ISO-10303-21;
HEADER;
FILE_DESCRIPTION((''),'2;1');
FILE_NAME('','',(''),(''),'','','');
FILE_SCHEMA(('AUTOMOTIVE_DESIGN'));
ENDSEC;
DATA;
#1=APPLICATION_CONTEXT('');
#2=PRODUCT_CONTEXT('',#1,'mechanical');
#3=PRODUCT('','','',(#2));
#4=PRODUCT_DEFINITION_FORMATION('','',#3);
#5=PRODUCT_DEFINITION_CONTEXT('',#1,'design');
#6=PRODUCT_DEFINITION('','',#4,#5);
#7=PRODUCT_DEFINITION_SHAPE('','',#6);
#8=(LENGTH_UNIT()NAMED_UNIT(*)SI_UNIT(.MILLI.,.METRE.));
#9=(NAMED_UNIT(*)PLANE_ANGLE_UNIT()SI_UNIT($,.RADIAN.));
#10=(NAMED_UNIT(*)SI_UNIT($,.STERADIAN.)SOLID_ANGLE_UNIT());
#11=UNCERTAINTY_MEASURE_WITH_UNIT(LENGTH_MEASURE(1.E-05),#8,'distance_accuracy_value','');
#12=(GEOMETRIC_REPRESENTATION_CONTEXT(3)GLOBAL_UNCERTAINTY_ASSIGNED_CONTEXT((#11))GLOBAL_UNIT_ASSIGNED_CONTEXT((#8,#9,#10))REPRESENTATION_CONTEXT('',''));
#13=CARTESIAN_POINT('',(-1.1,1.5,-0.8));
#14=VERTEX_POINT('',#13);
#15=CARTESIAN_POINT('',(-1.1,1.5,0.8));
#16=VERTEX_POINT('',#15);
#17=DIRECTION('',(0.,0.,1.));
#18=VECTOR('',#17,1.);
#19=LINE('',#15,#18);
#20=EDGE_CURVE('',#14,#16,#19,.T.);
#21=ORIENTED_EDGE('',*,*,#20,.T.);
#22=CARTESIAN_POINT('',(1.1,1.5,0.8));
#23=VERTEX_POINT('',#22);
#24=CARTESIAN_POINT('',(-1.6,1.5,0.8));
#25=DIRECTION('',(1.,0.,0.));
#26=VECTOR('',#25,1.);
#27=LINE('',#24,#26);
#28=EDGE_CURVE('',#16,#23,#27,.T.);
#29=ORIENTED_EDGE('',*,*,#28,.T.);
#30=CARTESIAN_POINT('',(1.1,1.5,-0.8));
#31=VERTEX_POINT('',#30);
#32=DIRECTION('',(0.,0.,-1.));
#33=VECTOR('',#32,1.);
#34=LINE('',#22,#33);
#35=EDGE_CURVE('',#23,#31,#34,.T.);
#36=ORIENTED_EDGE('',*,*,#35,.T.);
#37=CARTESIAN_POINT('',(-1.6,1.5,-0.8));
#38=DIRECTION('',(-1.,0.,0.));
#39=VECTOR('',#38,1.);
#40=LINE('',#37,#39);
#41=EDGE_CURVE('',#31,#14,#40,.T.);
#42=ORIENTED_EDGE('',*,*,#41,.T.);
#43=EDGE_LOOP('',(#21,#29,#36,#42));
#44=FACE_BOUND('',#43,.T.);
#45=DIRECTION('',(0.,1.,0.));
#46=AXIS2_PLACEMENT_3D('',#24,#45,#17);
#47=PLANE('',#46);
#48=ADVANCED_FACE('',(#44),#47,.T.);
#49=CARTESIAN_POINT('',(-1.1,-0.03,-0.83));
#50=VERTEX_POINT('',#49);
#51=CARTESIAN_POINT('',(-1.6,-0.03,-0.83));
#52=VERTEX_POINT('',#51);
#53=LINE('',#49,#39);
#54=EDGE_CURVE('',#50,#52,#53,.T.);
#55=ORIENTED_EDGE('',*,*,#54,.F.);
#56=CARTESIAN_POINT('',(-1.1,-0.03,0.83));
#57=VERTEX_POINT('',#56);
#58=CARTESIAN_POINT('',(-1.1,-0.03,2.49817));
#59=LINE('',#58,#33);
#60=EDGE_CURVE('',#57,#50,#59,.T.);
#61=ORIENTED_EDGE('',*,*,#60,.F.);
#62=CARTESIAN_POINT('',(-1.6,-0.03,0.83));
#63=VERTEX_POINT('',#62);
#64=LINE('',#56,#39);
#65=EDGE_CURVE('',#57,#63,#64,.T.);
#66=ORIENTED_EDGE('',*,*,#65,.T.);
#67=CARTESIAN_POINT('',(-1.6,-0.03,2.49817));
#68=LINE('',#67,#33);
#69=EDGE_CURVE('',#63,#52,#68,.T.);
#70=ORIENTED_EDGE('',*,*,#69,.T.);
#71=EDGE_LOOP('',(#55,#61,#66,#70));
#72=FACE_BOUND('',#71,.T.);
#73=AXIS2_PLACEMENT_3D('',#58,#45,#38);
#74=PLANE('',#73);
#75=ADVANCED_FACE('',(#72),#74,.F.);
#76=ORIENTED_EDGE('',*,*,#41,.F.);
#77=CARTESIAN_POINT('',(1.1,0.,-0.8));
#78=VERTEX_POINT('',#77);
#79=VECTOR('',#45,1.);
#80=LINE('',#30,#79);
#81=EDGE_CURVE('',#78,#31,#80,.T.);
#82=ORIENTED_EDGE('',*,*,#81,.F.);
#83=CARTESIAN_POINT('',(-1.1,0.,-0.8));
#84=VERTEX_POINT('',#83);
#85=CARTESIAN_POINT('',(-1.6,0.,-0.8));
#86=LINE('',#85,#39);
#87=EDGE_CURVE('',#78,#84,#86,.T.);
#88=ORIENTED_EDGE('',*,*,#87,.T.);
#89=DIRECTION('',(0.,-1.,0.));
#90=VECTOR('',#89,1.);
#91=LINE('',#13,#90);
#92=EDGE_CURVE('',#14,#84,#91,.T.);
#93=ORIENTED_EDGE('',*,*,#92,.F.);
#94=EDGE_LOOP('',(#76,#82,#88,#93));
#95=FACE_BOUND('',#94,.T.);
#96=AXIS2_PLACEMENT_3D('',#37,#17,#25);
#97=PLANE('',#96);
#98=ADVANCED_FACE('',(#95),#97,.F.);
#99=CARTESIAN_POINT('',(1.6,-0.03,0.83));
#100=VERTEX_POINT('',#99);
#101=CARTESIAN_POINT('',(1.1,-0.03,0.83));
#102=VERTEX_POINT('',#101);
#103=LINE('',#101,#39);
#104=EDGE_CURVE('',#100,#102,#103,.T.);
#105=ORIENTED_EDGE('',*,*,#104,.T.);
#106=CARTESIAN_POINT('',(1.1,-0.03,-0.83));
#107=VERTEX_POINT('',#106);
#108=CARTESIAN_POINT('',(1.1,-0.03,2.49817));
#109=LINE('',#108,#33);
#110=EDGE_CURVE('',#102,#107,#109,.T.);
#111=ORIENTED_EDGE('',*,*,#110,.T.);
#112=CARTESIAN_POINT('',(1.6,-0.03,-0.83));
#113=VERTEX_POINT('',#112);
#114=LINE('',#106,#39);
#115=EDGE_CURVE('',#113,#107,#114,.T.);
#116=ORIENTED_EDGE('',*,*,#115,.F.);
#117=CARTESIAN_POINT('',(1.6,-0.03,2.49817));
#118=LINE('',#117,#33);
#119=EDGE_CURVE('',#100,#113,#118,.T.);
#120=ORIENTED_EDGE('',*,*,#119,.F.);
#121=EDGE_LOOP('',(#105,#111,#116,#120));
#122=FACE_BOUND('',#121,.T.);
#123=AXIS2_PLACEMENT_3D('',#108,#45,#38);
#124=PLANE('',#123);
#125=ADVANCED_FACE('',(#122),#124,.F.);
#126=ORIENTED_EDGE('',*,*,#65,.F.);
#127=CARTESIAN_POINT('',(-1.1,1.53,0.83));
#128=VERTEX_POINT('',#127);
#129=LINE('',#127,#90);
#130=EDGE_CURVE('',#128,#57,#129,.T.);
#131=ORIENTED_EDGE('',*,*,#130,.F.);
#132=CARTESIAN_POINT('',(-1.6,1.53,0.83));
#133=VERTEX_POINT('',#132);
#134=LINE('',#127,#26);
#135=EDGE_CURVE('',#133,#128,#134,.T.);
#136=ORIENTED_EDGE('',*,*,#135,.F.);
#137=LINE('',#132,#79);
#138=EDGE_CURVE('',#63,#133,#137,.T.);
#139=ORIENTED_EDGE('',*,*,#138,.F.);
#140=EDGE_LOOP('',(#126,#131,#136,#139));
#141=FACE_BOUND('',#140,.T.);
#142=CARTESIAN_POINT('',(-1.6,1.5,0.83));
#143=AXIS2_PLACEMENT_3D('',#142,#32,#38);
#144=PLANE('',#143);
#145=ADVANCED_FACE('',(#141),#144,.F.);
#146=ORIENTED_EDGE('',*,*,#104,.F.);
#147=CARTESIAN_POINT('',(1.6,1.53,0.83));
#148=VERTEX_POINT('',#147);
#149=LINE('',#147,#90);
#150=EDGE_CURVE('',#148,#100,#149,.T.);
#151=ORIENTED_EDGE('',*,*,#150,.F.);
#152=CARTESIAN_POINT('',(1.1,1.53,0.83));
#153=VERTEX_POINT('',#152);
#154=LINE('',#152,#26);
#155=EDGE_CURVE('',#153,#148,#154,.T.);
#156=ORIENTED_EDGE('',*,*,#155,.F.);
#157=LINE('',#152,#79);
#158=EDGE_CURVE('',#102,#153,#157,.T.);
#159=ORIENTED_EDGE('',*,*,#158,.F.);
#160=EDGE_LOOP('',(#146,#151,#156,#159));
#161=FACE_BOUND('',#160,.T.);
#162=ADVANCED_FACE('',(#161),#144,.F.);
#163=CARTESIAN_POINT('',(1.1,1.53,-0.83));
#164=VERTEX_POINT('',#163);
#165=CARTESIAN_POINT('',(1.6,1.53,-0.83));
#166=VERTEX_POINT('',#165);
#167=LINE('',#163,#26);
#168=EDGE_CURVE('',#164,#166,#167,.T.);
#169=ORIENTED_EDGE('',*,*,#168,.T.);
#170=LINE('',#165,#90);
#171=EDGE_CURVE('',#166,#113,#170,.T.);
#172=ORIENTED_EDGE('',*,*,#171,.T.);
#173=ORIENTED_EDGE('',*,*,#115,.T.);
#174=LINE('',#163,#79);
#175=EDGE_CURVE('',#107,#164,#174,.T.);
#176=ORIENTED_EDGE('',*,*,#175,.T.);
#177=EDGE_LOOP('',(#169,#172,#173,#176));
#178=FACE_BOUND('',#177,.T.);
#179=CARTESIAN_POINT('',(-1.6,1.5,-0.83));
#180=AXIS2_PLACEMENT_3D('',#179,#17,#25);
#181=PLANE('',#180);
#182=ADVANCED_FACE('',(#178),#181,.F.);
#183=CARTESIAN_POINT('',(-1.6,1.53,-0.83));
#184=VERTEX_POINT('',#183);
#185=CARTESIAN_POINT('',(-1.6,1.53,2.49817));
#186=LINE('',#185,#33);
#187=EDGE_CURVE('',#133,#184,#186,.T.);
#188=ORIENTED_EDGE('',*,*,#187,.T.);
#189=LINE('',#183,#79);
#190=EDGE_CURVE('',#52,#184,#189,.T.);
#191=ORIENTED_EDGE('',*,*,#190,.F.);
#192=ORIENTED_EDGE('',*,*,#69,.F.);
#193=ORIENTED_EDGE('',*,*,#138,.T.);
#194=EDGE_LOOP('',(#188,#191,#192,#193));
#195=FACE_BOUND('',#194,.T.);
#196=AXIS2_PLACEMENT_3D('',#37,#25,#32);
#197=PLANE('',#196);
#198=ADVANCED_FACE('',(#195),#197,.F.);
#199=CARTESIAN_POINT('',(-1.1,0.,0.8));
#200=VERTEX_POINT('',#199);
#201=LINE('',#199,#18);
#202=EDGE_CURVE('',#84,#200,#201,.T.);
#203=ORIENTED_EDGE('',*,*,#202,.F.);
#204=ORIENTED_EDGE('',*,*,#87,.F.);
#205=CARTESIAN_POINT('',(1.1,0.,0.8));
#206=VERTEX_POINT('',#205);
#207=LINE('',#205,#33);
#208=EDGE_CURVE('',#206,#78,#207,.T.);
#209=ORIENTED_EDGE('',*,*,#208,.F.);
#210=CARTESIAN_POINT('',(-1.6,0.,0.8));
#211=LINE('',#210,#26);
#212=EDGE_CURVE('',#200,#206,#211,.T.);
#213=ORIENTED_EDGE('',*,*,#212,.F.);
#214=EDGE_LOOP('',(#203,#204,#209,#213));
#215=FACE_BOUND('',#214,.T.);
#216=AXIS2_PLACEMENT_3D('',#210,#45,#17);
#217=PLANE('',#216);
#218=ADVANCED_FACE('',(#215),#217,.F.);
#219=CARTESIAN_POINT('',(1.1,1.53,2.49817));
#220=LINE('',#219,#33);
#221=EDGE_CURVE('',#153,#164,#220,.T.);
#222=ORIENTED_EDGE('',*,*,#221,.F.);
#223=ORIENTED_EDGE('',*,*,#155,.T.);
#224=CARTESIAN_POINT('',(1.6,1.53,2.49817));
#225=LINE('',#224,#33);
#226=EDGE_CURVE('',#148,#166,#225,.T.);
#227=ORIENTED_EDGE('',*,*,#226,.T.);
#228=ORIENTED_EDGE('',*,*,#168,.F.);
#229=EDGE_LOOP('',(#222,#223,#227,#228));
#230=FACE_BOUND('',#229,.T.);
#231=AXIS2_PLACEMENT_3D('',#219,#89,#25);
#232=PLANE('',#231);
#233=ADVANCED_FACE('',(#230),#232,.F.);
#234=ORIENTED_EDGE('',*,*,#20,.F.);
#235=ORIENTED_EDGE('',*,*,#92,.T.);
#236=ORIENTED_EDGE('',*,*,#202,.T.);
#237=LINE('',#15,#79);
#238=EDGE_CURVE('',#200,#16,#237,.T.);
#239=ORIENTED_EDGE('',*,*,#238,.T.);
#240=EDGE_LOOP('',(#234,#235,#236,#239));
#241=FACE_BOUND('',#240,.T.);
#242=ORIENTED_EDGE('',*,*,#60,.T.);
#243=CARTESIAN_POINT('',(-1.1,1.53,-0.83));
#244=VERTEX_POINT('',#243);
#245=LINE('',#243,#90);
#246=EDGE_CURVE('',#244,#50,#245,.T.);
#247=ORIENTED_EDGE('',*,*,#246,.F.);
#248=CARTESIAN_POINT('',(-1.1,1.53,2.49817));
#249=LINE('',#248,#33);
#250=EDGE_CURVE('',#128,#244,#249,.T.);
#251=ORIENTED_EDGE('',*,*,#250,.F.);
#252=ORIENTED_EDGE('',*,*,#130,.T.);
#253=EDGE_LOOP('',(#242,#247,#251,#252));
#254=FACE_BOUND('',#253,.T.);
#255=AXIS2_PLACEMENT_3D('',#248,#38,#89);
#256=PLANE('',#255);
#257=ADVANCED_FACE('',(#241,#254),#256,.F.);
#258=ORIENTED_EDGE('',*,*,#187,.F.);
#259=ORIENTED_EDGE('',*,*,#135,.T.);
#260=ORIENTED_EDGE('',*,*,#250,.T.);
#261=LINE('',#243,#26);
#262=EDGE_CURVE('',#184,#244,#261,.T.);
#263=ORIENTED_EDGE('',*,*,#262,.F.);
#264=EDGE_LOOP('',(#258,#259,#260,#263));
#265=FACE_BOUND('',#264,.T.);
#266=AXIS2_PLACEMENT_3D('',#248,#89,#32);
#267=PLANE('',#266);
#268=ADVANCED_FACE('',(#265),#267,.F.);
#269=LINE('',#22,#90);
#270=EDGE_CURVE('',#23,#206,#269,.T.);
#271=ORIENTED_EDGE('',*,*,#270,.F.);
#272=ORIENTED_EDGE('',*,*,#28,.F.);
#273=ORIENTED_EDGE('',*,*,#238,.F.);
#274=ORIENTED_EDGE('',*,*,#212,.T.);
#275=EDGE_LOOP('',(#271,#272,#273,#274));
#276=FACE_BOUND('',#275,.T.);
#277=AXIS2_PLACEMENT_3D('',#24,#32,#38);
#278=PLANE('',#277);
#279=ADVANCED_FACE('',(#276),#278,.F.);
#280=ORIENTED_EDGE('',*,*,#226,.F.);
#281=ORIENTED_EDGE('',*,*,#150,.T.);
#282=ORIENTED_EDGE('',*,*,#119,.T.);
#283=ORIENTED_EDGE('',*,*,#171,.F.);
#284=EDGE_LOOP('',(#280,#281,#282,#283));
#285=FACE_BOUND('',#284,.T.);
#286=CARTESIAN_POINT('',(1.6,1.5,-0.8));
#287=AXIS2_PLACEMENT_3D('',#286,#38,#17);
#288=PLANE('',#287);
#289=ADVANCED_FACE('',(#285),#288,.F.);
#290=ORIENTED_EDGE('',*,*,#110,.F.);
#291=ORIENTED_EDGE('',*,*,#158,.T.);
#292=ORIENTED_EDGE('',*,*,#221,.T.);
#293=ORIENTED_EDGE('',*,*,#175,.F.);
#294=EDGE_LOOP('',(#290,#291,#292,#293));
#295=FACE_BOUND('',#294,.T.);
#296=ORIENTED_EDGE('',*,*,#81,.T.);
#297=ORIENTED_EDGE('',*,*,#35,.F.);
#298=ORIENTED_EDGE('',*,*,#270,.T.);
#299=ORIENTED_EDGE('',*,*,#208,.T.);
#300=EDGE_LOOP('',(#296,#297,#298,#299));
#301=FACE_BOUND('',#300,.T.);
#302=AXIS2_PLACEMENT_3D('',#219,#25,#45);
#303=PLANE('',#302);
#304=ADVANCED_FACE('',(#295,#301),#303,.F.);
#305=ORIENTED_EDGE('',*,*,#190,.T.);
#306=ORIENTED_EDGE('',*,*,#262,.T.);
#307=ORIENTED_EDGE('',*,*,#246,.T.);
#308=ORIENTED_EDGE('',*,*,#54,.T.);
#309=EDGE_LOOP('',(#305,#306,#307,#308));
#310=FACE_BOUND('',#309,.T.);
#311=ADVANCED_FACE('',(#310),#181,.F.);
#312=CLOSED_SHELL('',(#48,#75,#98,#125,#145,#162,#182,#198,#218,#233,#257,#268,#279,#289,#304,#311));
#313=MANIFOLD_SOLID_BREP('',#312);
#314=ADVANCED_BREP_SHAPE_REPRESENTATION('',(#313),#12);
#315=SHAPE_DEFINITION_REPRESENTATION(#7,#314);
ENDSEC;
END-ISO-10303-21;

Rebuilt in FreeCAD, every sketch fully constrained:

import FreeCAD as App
import Part
import Sketcher
Q = App.Units.Quantity

doc = App.newDocument("Part")
params = doc.addObject("Spreadsheet::Sheet", "Params")
for row, (alias, value) in enumerate([
    ("sketch1_width", "3.2 mm"),
    ("sketch1_height", "1.6 mm"),
    ("pad1_length", "1.5 mm"),
    ("sketch2_width", "0.5 mm"),
    ("sketch2_height", "1.56 mm"),
    ("pad2_length", "0.83 mm"),
    ("pad2_length2", "0.83 mm"),
], start=1):
    params.set(f"A{row}", alias)
    params.set(f"B{row}", "=" + value)
    params.setAlias(f"B{row}", alias)

body = doc.addObject("PartDesign::Body", "Body")

# Sketch on XZ plane
sketch1 = body.newObject("Sketcher::SketchObject", "Sketch")
sketch1.AttachmentSupport = (doc.getObject("XZ_Plane"), [""])
sketch1.MapMode = "FlatFace"
sketch1.addGeometry(Part.LineSegment(App.Vector(-1.6, -0.8, 0), App.Vector(-1.6, 0.8, 0)), False)
sketch1.addGeometry(Part.LineSegment(App.Vector(-1.6, 0.8, 0), App.Vector(1.6, 0.8, 0)), False)
sketch1.addGeometry(Part.LineSegment(App.Vector(1.6, 0.8, 0), App.Vector(1.6, -0.8, 0)), False)
sketch1.addGeometry(Part.LineSegment(App.Vector(1.6, -0.8, 0), App.Vector(-1.6, -0.8, 0)), False)
sketch1.addConstraint(Sketcher.Constraint("Coincident", 0, 2, 1, 1))
sketch1.addConstraint(Sketcher.Constraint("Coincident", 1, 2, 2, 1))
sketch1.addConstraint(Sketcher.Constraint("Coincident", 2, 2, 3, 1))
sketch1.addConstraint(Sketcher.Constraint("Coincident", 3, 2, 0, 1))
sketch1.addConstraint(Sketcher.Constraint("Vertical", 0))
sketch1.addConstraint(Sketcher.Constraint("Horizontal", 1))
sketch1.addConstraint(Sketcher.Constraint("Vertical", 2))
sketch1.addConstraint(Sketcher.Constraint("Horizontal", 3))
sketch1.addConstraint(Sketcher.Constraint("Symmetric", 0, 2, 2, 2, -1, 1))
sketch1.addConstraint(Sketcher.Constraint("DistanceX", 1, 1, 1, 2, Q("3.2 mm")))
sketch1.addConstraint(Sketcher.Constraint("DistanceY", 0, 1, 0, 2, Q("1.6 mm")))
sketch1.setExpression("Constraints[9]", "Params.sketch1_width")
sketch1.setExpression("Constraints[10]", "Params.sketch1_height")
pad1 = body.newObject("PartDesign::Pad", "Pad")
pad1.Profile = sketch1
pad1.setExpression("Length", "Params.pad1_length")
pad1.Reversed = True

# Sketch on XY plane
sketch2 = body.newObject("Sketcher::SketchObject", "Sketch001")
sketch2.AttachmentSupport = (doc.getObject("XY_Plane"), [""])
sketch2.MapMode = "FlatFace"
sketch2.addGeometry(Part.LineSegment(App.Vector(-1.6, 1.5, 0), App.Vector(-1.6, 0, 0)), False)
sketch2.addGeometry(Part.LineSegment(App.Vector(-1.6, 0, 0), App.Vector(-1.1, 0, 0)), False)
sketch2.addGeometry(Part.LineSegment(App.Vector(-1.1, 0, 0), App.Vector(-1.1, 1.5, 0)), False)
sketch2.addGeometry(Part.LineSegment(App.Vector(-1.1, 1.5, 0), App.Vector(-1.6, 1.5, 0)), False)
sketch2.addGeometry(Part.LineSegment(App.Vector(1.1, 1.5, 0), App.Vector(1.1, 0, 0)), False)
sketch2.addGeometry(Part.LineSegment(App.Vector(1.1, 0, 0), App.Vector(1.6, 0, 0)), False)
sketch2.addGeometry(Part.LineSegment(App.Vector(1.6, 0, 0), App.Vector(1.6, 1.5, 0)), False)
sketch2.addGeometry(Part.LineSegment(App.Vector(1.6, 1.5, 0), App.Vector(1.1, 1.5, 0)), False)
sketch2.addConstraint(Sketcher.Constraint("Coincident", 0, 2, 1, 1))
sketch2.addConstraint(Sketcher.Constraint("Coincident", 1, 2, 2, 1))
sketch2.addConstraint(Sketcher.Constraint("Coincident", 2, 2, 3, 1))
sketch2.addConstraint(Sketcher.Constraint("Coincident", 3, 2, 0, 1))
sketch2.addConstraint(Sketcher.Constraint("Coincident", 4, 2, 5, 1))
sketch2.addConstraint(Sketcher.Constraint("Coincident", 5, 2, 6, 1))
sketch2.addConstraint(Sketcher.Constraint("Coincident", 6, 2, 7, 1))
sketch2.addConstraint(Sketcher.Constraint("Coincident", 7, 2, 4, 1))
sketch2.addConstraint(Sketcher.Constraint("Vertical", 0))
sketch2.addConstraint(Sketcher.Constraint("Horizontal", 1))
sketch2.addConstraint(Sketcher.Constraint("Vertical", 2))
sketch2.addConstraint(Sketcher.Constraint("Horizontal", 3))
sketch2.addConstraint(Sketcher.Constraint("Vertical", 4))
sketch2.addConstraint(Sketcher.Constraint("Horizontal", 5))
sketch2.addConstraint(Sketcher.Constraint("Vertical", 6))
sketch2.addConstraint(Sketcher.Constraint("Horizontal", 7))
sketch2.addConstraint(Sketcher.Constraint("Symmetric", 1, 2, 4, 2, -2))
sketch2.addConstraint(Sketcher.Constraint("Symmetric", 3, 2, 6, 2, -2))
sketch2.addConstraint(Sketcher.Constraint("DistanceX", 1, 1, 1, 2, Q("0.5 mm")))
sketch2.addConstraint(Sketcher.Constraint("DistanceY", 0, 2, 0, 1, Q("1.56 mm")))
sketch2.addConstraint(Sketcher.Constraint("DistanceX", 0, 2, -1, 1, Q("1.6 mm")))
sketch2.addConstraint(Sketcher.Constraint("DistanceY", 0, 2, -1, 1, Q("0.03 mm")))
sketch2.setExpression("Constraints[18]", "Params.sketch2_width")
sketch2.setExpression("Constraints[19]", "Params.sketch2_height")
pad2 = body.newObject("PartDesign::Pad", "Pad001")
pad2.Profile = sketch2
pad2.Type = "TwoLengths"
pad2.setExpression("Length", "Params.pad2_length")
pad2.setExpression("Length2", "Params.pad2_length2")

doc.recompute()
